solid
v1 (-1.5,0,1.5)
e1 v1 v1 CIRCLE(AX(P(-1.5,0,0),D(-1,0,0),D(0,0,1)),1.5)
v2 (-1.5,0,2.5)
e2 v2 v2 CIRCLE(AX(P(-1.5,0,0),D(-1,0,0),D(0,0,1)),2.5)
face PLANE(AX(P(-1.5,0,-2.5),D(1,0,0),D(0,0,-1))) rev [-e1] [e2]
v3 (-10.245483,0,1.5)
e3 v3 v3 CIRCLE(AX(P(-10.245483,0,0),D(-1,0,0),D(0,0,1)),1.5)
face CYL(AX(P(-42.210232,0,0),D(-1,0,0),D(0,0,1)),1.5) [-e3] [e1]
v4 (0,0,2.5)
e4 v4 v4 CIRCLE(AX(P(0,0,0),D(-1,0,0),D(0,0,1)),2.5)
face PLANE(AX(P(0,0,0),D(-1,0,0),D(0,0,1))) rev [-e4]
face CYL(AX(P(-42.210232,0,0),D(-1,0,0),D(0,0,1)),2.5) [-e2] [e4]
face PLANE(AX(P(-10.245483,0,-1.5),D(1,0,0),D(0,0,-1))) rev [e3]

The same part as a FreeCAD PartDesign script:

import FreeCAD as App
import Part
import Sketcher

doc = App.newDocument("Part")
body = doc.addObject("PartDesign::Body", "Body")

sketch1 = body.newObject("Sketcher::SketchObject", "Sketch")
sketch1.AttachmentSupport = (doc.getObject("XZ_Plane"), [""])
sketch1.MapMode = "FlatFace"
sketch1.addGeometry(Part.LineSegment(App.Vector(0, 0, 0), App.Vector(0, -2.5, 0)), False)
sketch1.addGeometry(Part.LineSegment(App.Vector(0, -2.5, 0), App.Vector(-1.5, -2.5, 0)), False)
sketch1.addGeometry(Part.LineSegment(App.Vector(-1.5, -2.5, 0), App.Vector(-1.5, -1.5, 0)), False)
sketch1.addGeometry(Part.LineSegment(App.Vector(-1.5, -1.5, 0), App.Vector(-10.245483, -1.5, 0)), False)
sketch1.addGeometry(Part.LineSegment(App.Vector(-10.245483, -1.5, 0), App.Vector(-10.245483, 0, 0)), False)
sketch1.addGeometry(Part.LineSegment(App.Vector(-10.245483, 0, 0), App.Vector(0, 0, 0)), False)
sketch1.addConstraint(Sketcher.Constraint("Coincident", 0, 2, 1, 1))
sketch1.addConstraint(Sketcher.Constraint("Coincident", 1, 2, 2, 1))
sketch1.addConstraint(Sketcher.Constraint("Coincident", 2, 2, 3, 1))
sketch1.addConstraint(Sketcher.Constraint("Coincident", 3, 2, 4, 1))
sketch1.addConstraint(Sketcher.Constraint("Coincident", 4, 2, 5, 1))
sketch1.addConstraint(Sketcher.Constraint("Coincident", 5, 2, 0, 1))
sketch1.addConstraint(Sketcher.Constraint("Vertical", 0))
sketch1.addConstraint(Sketcher.Constraint("Horizontal", 1))
sketch1.addConstraint(Sketcher.Constraint("Vertical", 2))
sketch1.addConstraint(Sketcher.Constraint("Horizontal", 3))
sketch1.addConstraint(Sketcher.Constraint("Vertical", 4))
sketch1.addConstraint(Sketcher.Constraint("Horizontal", 5))
sketch1.addConstraint(Sketcher.Constraint("Coincident", 5, 2, -1, 1))
sketch1.addConstraint(Sketcher.Constraint("Equal", 1, 4))
sketch1.addConstraint(Sketcher.Constraint("DistanceY", 2, 1, 2, 2, 1.0))
sketch1.addConstraint(Sketcher.Constraint("DistanceX", 1, 2, 1, 1, 1.5))
sketch1.addConstraint(Sketcher.Constraint("DistanceX", 3, 2, 3, 1, 8.745483))
revolution = body.newObject("PartDesign::Revolution", "Revolution")
revolution.Profile = sketch1
revolution.ReferenceAxis = (sketch1, ["H_Axis"])
revolution.Angle = 360

doc.recompute()
